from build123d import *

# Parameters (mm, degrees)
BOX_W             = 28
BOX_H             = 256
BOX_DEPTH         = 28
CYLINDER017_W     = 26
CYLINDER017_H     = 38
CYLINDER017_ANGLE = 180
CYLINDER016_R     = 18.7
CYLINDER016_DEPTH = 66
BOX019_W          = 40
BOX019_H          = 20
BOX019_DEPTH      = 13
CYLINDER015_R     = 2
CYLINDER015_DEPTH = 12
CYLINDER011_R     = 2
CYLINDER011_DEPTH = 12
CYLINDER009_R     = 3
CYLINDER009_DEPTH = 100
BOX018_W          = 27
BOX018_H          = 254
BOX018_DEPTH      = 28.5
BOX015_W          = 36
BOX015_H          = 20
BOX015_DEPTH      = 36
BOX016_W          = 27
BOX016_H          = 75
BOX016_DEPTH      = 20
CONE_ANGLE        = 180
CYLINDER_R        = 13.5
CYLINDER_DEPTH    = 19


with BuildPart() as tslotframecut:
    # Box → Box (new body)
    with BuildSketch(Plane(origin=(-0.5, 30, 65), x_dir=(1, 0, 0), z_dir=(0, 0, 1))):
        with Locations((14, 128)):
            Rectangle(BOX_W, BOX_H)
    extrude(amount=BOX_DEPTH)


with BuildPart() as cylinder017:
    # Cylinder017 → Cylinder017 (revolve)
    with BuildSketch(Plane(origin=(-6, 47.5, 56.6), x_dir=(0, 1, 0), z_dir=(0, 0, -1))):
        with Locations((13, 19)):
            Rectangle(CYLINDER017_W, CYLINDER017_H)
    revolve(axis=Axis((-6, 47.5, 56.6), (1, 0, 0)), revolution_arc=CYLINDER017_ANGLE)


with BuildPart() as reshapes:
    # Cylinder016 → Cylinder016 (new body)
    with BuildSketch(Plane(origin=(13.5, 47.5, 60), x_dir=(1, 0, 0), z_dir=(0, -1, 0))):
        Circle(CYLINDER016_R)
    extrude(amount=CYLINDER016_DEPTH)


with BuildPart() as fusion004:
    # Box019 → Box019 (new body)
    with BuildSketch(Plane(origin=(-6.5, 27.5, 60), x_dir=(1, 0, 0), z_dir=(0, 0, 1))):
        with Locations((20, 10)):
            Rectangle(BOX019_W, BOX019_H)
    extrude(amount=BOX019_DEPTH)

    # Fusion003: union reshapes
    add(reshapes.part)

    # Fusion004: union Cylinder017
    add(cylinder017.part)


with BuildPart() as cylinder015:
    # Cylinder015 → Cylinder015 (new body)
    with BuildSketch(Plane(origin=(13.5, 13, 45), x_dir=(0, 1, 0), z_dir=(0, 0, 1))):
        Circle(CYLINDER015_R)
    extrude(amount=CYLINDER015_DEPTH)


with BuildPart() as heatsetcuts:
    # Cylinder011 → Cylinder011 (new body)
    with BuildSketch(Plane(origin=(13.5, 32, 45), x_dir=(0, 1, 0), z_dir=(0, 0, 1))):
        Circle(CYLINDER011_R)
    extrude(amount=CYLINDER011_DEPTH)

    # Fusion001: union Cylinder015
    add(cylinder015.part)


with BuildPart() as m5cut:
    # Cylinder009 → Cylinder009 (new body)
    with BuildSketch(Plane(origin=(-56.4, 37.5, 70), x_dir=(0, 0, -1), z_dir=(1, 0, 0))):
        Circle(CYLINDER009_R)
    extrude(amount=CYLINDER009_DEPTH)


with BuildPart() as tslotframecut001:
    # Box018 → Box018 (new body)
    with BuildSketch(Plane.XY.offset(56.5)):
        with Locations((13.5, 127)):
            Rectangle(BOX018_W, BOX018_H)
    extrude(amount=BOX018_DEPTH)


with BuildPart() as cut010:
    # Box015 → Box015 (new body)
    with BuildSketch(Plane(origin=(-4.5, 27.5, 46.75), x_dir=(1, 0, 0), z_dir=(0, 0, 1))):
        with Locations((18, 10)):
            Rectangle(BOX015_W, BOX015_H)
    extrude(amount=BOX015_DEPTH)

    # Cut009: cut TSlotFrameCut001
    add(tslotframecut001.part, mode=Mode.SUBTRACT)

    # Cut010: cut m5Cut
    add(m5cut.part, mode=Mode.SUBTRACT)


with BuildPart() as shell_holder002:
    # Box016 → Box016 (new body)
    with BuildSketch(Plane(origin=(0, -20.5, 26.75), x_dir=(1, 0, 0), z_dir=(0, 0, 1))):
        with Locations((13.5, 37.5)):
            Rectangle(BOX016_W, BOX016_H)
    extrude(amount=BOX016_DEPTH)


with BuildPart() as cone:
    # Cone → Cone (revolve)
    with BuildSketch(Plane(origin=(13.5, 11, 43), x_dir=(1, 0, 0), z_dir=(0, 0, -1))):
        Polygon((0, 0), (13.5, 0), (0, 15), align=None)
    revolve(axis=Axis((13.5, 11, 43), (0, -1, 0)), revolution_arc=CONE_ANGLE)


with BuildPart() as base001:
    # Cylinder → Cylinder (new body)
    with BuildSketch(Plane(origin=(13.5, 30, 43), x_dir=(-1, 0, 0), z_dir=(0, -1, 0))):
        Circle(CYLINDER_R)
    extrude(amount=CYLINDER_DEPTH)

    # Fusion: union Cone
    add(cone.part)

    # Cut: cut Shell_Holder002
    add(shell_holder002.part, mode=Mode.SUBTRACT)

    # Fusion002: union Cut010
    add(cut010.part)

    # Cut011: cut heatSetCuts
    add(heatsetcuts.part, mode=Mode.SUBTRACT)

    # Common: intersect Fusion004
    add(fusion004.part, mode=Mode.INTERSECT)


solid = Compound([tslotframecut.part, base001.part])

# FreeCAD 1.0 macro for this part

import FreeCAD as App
import Part
import Sketcher

V = App.Vector
Q = App.Units.Quantity


def add_polygon(sketch, points):
    """Adds a closed chain of lines whose ends are joined by coincident constraints."""
    first, n = sketch.GeometryCount, len(points)
    for a, b in zip(points, points[1:] + points[:1]):
        sketch.addGeometry(Part.LineSegment(App.Vector(*a, 0), App.Vector(*b, 0)), False)
    for i in range(n):
        sketch.addConstraint(Sketcher.Constraint("Coincident", first + i, 2, first + (i + 1) % n, 1))

doc = App.newDocument("Part")
body = doc.addObject("PartDesign::Body", "Body")

sketch1 = doc.addObject("Sketcher::SketchObject", "Sketch")
body.addObject(sketch1)
sketch1.AttachmentSupport = (doc.XY_Plane, [""])
sketch1.MapMode = "FlatFace"
sketch1.AttachmentOffset = App.Placement(V(0, 0, 65), App.Rotation())
add_polygon(sketch1, [(0, 286), (0, 30), (28, 30), (28, 286)])
sketch1.addConstraint(Sketcher.Constraint("Vertical", 0))
sketch1.addConstraint(Sketcher.Constraint("Horizontal", 1))
sketch1.addConstraint(Sketcher.Constraint("Vertical", 2))
sketch1.addConstraint(Sketcher.Constraint("Horizontal", 3))
sketch1.addConstraint(Sketcher.Constraint("DistanceX", 1, 1, 1, 2, Q("28 mm")))
sketch1.addConstraint(Sketcher.Constraint("DistanceY", 0, 2, 0, 1, Q("256 mm")))
sketch1.addConstraint(Sketcher.Constraint("DistanceY", -1, 1, 0, 2, Q("30 mm")))
sketch1.addConstraint(Sketcher.Constraint("DistanceX", 0, 2, -1, 1, Q("0.5 mm")))
pad1 = doc.addObject("PartDesign::Pad", "Pad")
body.addObject(pad1)
pad1.Profile = sketch1
pad1.Length = 28
body2 = doc.addObject("PartDesign::Body", "Body001")

sketch2 = doc.addObject("Sketcher::SketchObject", "Sketch001")
body2.addObject(sketch2)
sketch2.AttachmentSupport = (doc.getObject("XY_Plane001"), [""])
sketch2.MapMode = "FlatFace"
sketch2.AttachmentOffset = App.Placement(V(0, 0, 56.6), App.Rotation())
add_polygon(sketch2, [(32, 48), (-6, 48), (-6, 74), (32, 74)])
sketch2.addGeometry(Part.LineSegment(V(-6, 48, 0), V(32, 48, 0)), True)
sketch2.addConstraint(Sketcher.Constraint("Horizontal", 0))
sketch2.addConstraint(Sketcher.Constraint("Vertical", 1))
sketch2.addConstraint(Sketcher.Constraint("Horizontal", 2))
sketch2.addConstraint(Sketcher.Constraint("Vertical", 3))
sketch2.addConstraint(Sketcher.Constraint("Horizontal", 4))
sketch2.addConstraint(Sketcher.Constraint("Coincident", 4, 1, 0, 2))
sketch2.addConstraint(Sketcher.Constraint("Vertical", 2, 2, 4, 2))
sketch2.addConstraint(Sketcher.Constraint("DistanceX", 0, 2, 0, 1, Q("38 mm")))
sketch2.addConstraint(Sketcher.Constraint("DistanceY", 1, 1, 1, 2, Q("26 mm")))
sketch2.addConstraint(Sketcher.Constraint("DistanceX", 0, 2, -1, 1, Q("6 mm")))
sketch2.addConstraint(Sketcher.Constraint("DistanceY", -1, 1, 0, 2, Q("47.5 mm")))
revolution = doc.addObject("PartDesign::Revolution", "Revolution")
body2.addObject(revolution)
revolution.Profile = sketch2
revolution.ReferenceAxis = (sketch2, ["Axis0"])
revolution.Angle = 180
body3 = doc.addObject("PartDesign::Body", "Body002")

sketch3 = doc.addObject("Sketcher::SketchObject", "Sketch002")
body3.addObject(sketch3)
sketch3.AttachmentSupport = (doc.getObject("XZ_Plane002"), [""])
sketch3.MapMode = "FlatFace"
sketch3.AttachmentOffset = App.Placement(V(0, 0, -47.5), App.Rotation())
sketch3.addGeometry(Part.Circle(V(14, 60, 0), V(0, 0, 1), 19), False)
sketch3.addConstraint(Sketcher.Constraint("Diameter", 0, Q("37.4 mm")))
sketch3.addConstraint(Sketcher.Constraint("DistanceY", -1, 1, 0, 3, Q("60 mm")))
sketch3.addConstraint(Sketcher.Constraint("DistanceX", -1, 1, 0, 3, Q("13.5 mm")))
pad2 = doc.addObject("PartDesign::Pad", "Pad001")
body3.addObject(pad2)
pad2.Profile = sketch3
pad2.Length = 66
body4 = doc.addObject("PartDesign::Body", "Body003")

sketch4 = doc.addObject("Sketcher::SketchObject", "Sketch003")
body4.addObject(sketch4)
sketch4.AttachmentSupport = (doc.getObject("XY_Plane003"), [""])
sketch4.MapMode = "FlatFace"
sketch4.AttachmentOffset = App.Placement(V(0, 0, 60), App.Rotation())
add_polygon(sketch4, [(-6, 48), (-6, 28), (34, 28), (34, 48)])
sketch4.addConstraint(Sketcher.Constraint("Vertical", 0))
sketch4.addConstraint(Sketcher.Constraint("Horizontal", 1))
sketch4.addConstraint(Sketcher.Constraint("Vertical", 2))
sketch4.addConstraint(Sketcher.Constraint("Horizontal", 3))
sketch4.addConstraint(Sketcher.Constraint("DistanceX", 1, 1, 1, 2, Q("40 mm")))
sketch4.addConstraint(Sketcher.Constraint("DistanceY", 0, 2, 0, 1, Q("20 mm")))
sketch4.addConstraint(Sketcher.Constraint("DistanceX", 0, 2, -1, 1, Q("6.5 mm")))
sketch4.addConstraint(Sketcher.Constraint("DistanceY", -1, 1, 0, 2, Q("27.5 mm")))
pad3 = doc.addObject("PartDesign::Pad", "Pad002")
body4.addObject(pad3)
pad3.Profile = sketch4
pad3.Length = 13
doc.recompute()

boolean = doc.addObject("PartDesign::Boolean", "Boolean")
body4.addObject(boolean)
boolean.Type = "Fuse"
boolean.addObjects([body3])
doc.recompute()

boolean2 = doc.addObject("PartDesign::Boolean", "Boolean001")
body4.addObject(boolean2)
boolean2.Type = "Fuse"
boolean2.addObjects([body2])
body5 = doc.addObject("PartDesign::Body", "Body004")

sketch5 = doc.addObject("Sketcher::SketchObject", "Sketch004")
body5.addObject(sketch5)
sketch5.AttachmentSupport = (doc.getObject("XY_Plane004"), [""])
sketch5.MapMode = "FlatFace"
sketch5.AttachmentOffset = App.Placement(V(0, 0, 45), App.Rotation())
sketch5.addGeometry(Part.Circle(V(13.5, 13, 0), V(0, 0, 1), 2), False)
sketch5.addConstraint(Sketcher.Constraint("Diameter", 0, Q("4 mm")))
sketch5.addConstraint(Sketcher.Constraint("DistanceY", -1, 1, 0, 3, Q("13 mm")))
sketch5.addConstraint(Sketcher.Constraint("DistanceX", -1, 1, 0, 3, Q("13.5 mm")))
pad4 = doc.addObject("PartDesign::Pad", "Pad003")
body5.addObject(pad4)
pad4.Profile = sketch5
pad4.Length = 12
body6 = doc.addObject("PartDesign::Body", "Body005")
body6.AllowCompound = True

sketch6 = doc.addObject("Sketcher::SketchObject", "Sketch005")
body6.addObject(sketch6)
sketch6.AttachmentSupport = (doc.getObject("XY_Plane005"), [""])
sketch6.MapMode = "FlatFace"
sketch6.AttachmentOffset = App.Placement(V(0, 0, 45), App.Rotation())
sketch6.addGeometry(Part.Circle(V(13.5, 32, 0), V(0, 0, 1), 2), False)
sketch6.addConstraint(Sketcher.Constraint("Diameter", 0, Q("4 mm")))
sketch6.addConstraint(Sketcher.Constraint("DistanceY", -1, 1, 0, 3, Q("32 mm")))
sketch6.addConstraint(Sketcher.Constraint("DistanceX", -1, 1, 0, 3, Q("13.5 mm")))
pad5 = doc.addObject("PartDesign::Pad", "Pad004")
body6.addObject(pad5)
pad5.Profile = sketch6
pad5.Length = 12
doc.recompute()

boolean3 = doc.addObject("PartDesign::Boolean", "Boolean002")
body6.addObject(boolean3)
boolean3.Type = "Fuse"
boolean3.addObjects([body5])
body7 = doc.addObject("PartDesign::Body", "Body006")

sketch7 = doc.addObject("Sketcher::SketchObject", "Sketch006")
body7.addObject(sketch7)
sketch7.AttachmentSupport = (doc.getObject("YZ_Plane006"), [""])
sketch7.MapMode = "FlatFace"
sketch7.AttachmentOffset = App.Placement(V(0, 0, -56.4), App.Rotation())
sketch7.addGeometry(Part.Circle(V(37.5, 70, 0), V(0, 0, 1), 3), False)
sketch7.addConstraint(Sketcher.Constraint("Diameter", 0, Q("6 mm")))
sketch7.addConstraint(Sketcher.Constraint("DistanceY", -1, 1, 0, 3, Q("70 mm")))
sketch7.addConstraint(Sketcher.Constraint("DistanceX", -1, 1, 0, 3, Q("37.5 mm")))
pad6 = doc.addObject("PartDesign::Pad", "Pad005")
body7.addObject(pad6)
pad6.Profile = sketch7
pad6.Length = 100
body8 = doc.addObject("PartDesign::Body", "Body007")

sketch8 = doc.addObject("Sketcher::SketchObject", "Sketch007")
body8.addObject(sketch8)
sketch8.AttachmentSupport = (doc.getObject("XY_Plane007"), [""])
sketch8.MapMode = "FlatFace"
sketch8.AttachmentOffset = App.Placement(V(0, 0, 56.5), App.Rotation())
add_polygon(sketch8, [(0, 254), (0, 0), (27, 0), (27, 254)])
sketch8.addConstraint(Sketcher.Constraint("Vertical", 0))
sketch8.addConstraint(Sketcher.Constraint("Horizontal", 1))
sketch8.addConstraint(Sketcher.Constraint("Vertical", 2))
sketch8.addConstraint(Sketcher.Constraint("Horizontal", 3))
sketch8.addConstraint(Sketcher.Constraint("Coincident", 0, 2, -1, 1))
sketch8.addConstraint(Sketcher.Constraint("DistanceX", 1, 1, 1, 2, Q("27 mm")))
sketch8.addConstraint(Sketcher.Constraint("DistanceY", 0, 2, 0, 1, Q("254 mm")))
pad7 = doc.addObject("PartDesign::Pad", "Pad006")
body8.addObject(pad7)
pad7.Profile = sketch8
pad7.Length = 28.5
body9 = doc.addObject("PartDesign::Body", "Body008")

sketch9 = doc.addObject("Sketcher::SketchObject", "Sketch008")
body9.addObject(sketch9)
sketch9.AttachmentSupport = (doc.getObject("XY_Plane008"), [""])
sketch9.MapMode = "FlatFace"
sketch9.AttachmentOffset = App.Placement(V(0, 0, 46.75), App.Rotation())
add_polygon(sketch9, [(-4, 48), (-4, 28), (32, 28), (32, 48)])
sketch9.addConstraint(Sketcher.Constraint("Vertical", 0))
sketch9.addConstraint(Sketcher.Constraint("Horizontal", 1))
sketch9.addConstraint(Sketcher.Constraint("Vertical", 2))
sketch9.addConstraint(Sketcher.Constraint("Horizontal", 3))
sketch9.addConstraint(Sketcher.Constraint("DistanceX", 1, 1, 1, 2, Q("36 mm")))
sketch9.addConstraint(Sketcher.Constraint("DistanceY", 0, 2, 0, 1, Q("20 mm")))
sketch9.addConstraint(Sketcher.Constraint("DistanceX", 0, 2, -1, 1, Q("4.5 mm")))
sketch9.addConstraint(Sketcher.Constraint("DistanceY", -1, 1, 0, 2, Q("27.5 mm")))
pad8 = doc.addObject("PartDesign::Pad", "Pad007")
body9.addObject(pad8)
pad8.Profile = sketch9
pad8.Length = 36
doc.recompute()

boolean4 = doc.addObject("PartDesign::Boolean", "Boolean003")
body9.addObject(boolean4)
boolean4.Type = "Cut"
boolean4.addObjects([body8])
doc.recompute()

boolean5 = doc.addObject("PartDesign::Boolean", "Boolean004")
body9.addObject(boolean5)
boolean5.Type = "Cut"
boolean5.addObjects([body7])
body10 = doc.addObject("PartDesign::Body", "Body009")

sketch10 = doc.addObject("Sketcher::SketchObject", "Sketch009")
body10.addObject(sketch10)
sketch10.AttachmentSupport = (doc.getObject("XY_Plane009"), [""])
sketch10.MapMode = "FlatFace"
sketch10.AttachmentOffset = App.Placement(V(0, 0, 26.75), App.Rotation())
add_polygon(sketch10, [(0, 54), (0, -20), (27, -20), (27, 54)])
sketch10.addConstraint(Sketcher.Constraint("Vertical", 0))
sketch10.addConstraint(Sketcher.Constraint("Horizontal", 1))
sketch10.addConstraint(Sketcher.Constraint("Vertical", 2))
sketch10.addConstraint(Sketcher.Constraint("Horizontal", 3))
sketch10.addConstraint(Sketcher.Constraint("PointOnObject", 0, 2, -2))
sketch10.addConstraint(Sketcher.Constraint("DistanceX", 1, 1, 1, 2, Q("27 mm")))
sketch10.addConstraint(Sketcher.Constraint("DistanceY", 0, 2, 0, 1, Q("75 mm")))
sketch10.addConstraint(Sketcher.Constraint("DistanceY", 0, 2, -1, 1, Q("20.5 mm")))
pad9 = doc.addObject("PartDesign::Pad", "Pad008")
body10.addObject(pad9)
pad9.Profile = sketch10
pad9.Length = 20
body11 = doc.addObject("PartDesign::Body", "Body010")

sketch11 = doc.addObject("Sketcher::SketchObject", "Sketch010")
body11.addObject(sketch11)
sketch11.AttachmentSupport = (doc.getObject("XY_Plane010"), [""])
sketch11.MapMode = "FlatFace"
sketch11.AttachmentOffset = App.Placement(V(0, 0, 43), App.Rotation())
add_polygon(sketch11, [(14, 11), (27, 11), (14, -4)])
sketch11.addGeometry(Part.LineSegment(V(14, 11, 0), V(14, -4, 0)), True)
sketch11.addConstraint(Sketcher.Constraint("Horizontal", 0))
sketch11.addConstraint(Sketcher.Constraint("Vertical", 2))
sketch11.addConstraint(Sketcher.Constraint("Vertical", 3))
sketch11.addConstraint(Sketcher.Constraint("Coincident", 3, 1, 2, 2))
sketch11.addConstraint(Sketcher.Constraint("Equal", 2, 3))
sketch11.addConstraint(Sketcher.Constraint("DistanceY", 2, 1, 2, 2, Q("15 mm")))
sketch11.addConstraint(Sketcher.Constraint("DistanceX", 0, 1, 0, 2, Q("13.5 mm")))
sketch11.addConstraint(Sketcher.Constraint("DistanceX", -1, 1, 0, 2, Q("27 mm")))
sketch11.addConstraint(Sketcher.Constraint("DistanceY", -1, 1, 0, 2, Q("11 mm")))
revolution2 = doc.addObject("PartDesign::Revolution", "Revolution001")
body11.addObject(revolution2)
revolution2.Profile = sketch11
revolution2.ReferenceAxis = (sketch11, ["Axis0"])
revolution2.Angle = 180
body12 = doc.addObject("PartDesign::Body", "Body011")

sketch12 = doc.addObject("Sketcher::SketchObject", "Sketch011")
body12.addObject(sketch12)
sketch12.AttachmentSupport = (doc.getObject("XZ_Plane011"), [""])
sketch12.MapMode = "FlatFace"
sketch12.AttachmentOffset = App.Placement(V(0, 0, -30), App.Rotation())
sketch12.addGeometry(Part.Circle(V(14, 43, 0), V(0, 0, 1), 14), False)
sketch12.addConstraint(Sketcher.Constraint("Diameter", 0, Q("27 mm")))
sketch12.addConstraint(Sketcher.Constraint("DistanceY", -1, 1, 0, 3, Q("43 mm")))
sketch12.addConstraint(Sketcher.Constraint("DistanceX", -1, 1, 0, 3, Q("13.5 mm")))
pad10 = doc.addObject("PartDesign::Pad", "Pad009")
body12.addObject(pad10)
pad10.Profile = sketch12
pad10.Length = 19
doc.recompute()

boolean6 = doc.addObject("PartDesign::Boolean", "Boolean005")
body12.addObject(boolean6)
boolean6.Type = "Fuse"
boolean6.addObjects([body11])
doc.recompute()

boolean7 = doc.addObject("PartDesign::Boolean", "Boolean006")
body12.addObject(boolean7)
boolean7.Type = "Cut"
boolean7.addObjects([body10])
doc.recompute()

boolean8 = doc.addObject("PartDesign::Boolean", "Boolean007")
body12.addObject(boolean8)
boolean8.Type = "Fuse"
boolean8.addObjects([body9])
doc.recompute()

boolean9 = doc.addObject("PartDesign::Boolean", "Boolean008")
body12.addObject(boolean9)
boolean9.Type = "Cut"
boolean9.addObjects([body6])
doc.recompute()

boolean10 = doc.addObject("PartDesign::Boolean", "Boolean009")
body12.addObject(boolean10)
boolean10.Type = "Common"
boolean10.addObjects([body4])

doc.recompute()
